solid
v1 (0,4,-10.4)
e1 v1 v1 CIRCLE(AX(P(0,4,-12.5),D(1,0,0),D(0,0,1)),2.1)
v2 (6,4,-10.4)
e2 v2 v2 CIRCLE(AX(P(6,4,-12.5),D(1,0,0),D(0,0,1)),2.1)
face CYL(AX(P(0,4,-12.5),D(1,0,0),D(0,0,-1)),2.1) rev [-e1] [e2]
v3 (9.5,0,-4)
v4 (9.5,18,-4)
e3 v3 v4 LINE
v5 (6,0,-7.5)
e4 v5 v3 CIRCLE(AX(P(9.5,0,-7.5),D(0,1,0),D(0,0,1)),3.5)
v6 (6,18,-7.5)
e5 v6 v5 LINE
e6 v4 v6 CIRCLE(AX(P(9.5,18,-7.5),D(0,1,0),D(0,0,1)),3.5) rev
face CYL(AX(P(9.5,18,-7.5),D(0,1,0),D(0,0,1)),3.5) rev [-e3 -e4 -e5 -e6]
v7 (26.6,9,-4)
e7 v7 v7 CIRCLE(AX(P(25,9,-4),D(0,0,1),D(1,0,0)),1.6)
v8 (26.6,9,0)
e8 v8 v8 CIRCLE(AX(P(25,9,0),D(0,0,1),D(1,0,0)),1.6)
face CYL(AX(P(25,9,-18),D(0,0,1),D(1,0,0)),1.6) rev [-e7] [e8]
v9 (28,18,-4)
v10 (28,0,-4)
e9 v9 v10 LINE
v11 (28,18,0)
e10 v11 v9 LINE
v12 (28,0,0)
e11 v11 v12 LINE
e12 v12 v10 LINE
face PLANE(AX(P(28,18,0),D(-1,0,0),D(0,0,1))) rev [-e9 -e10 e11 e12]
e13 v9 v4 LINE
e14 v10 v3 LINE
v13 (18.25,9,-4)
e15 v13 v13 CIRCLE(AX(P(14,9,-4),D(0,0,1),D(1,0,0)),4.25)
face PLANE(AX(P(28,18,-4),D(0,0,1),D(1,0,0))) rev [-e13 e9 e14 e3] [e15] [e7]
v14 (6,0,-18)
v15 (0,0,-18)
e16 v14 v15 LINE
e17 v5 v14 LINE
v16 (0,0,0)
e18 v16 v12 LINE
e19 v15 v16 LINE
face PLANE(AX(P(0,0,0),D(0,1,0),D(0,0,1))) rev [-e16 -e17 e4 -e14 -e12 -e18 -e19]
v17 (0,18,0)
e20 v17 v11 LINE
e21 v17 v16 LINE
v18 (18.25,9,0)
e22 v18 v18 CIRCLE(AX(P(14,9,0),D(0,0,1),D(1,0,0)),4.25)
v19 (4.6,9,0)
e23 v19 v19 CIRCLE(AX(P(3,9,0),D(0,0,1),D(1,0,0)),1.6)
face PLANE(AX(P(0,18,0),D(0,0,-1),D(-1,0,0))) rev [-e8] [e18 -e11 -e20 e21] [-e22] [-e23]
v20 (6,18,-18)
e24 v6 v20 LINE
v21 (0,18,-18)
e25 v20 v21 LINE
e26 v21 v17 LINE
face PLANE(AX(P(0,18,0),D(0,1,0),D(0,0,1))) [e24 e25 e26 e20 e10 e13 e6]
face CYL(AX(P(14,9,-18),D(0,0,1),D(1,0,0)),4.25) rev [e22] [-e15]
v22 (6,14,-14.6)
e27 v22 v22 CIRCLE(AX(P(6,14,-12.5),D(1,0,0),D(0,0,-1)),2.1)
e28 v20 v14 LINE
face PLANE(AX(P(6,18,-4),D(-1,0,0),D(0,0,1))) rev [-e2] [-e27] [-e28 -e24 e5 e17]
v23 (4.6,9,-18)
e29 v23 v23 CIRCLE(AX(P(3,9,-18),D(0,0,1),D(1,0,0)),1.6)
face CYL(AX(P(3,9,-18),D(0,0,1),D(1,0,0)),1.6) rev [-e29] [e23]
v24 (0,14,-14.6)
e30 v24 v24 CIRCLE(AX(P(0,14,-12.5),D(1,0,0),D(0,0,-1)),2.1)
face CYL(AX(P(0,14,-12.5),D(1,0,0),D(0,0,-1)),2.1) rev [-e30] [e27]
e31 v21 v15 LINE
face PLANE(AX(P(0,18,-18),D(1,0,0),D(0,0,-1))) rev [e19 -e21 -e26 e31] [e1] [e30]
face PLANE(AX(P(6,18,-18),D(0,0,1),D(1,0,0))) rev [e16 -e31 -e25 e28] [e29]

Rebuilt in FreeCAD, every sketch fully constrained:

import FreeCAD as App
import Part
import Sketcher
from FreeCAD import Vector
Q = App.Units.Quantity


def edges_at(feature, points):
    """Names of the edges that pass closest to the given points."""
    edges = feature.Shape.Edges
    near = lambda p: min(range(len(edges)), key=lambda i: edges[i].distToShape(Part.Vertex(*p))[0])
    return sorted({f"Edge{near(p) + 1}" for p in points})

doc = App.newDocument("Part")
body = doc.addObject("PartDesign::Body", "Body")

# Sketch on XZ plane
sketch1 = body.newObject("Sketcher::SketchObject", "Sketch")
sketch1.AttachmentSupport = (doc.getObject("XZ_Plane"), [""])
sketch1.MapMode = "FlatFace"
sketch1.addGeometry([
    Part.LineSegment(Vector(0, -18, 0), Vector(0, 0, 0)),  # 0
    Part.LineSegment(Vector(0, 0, 0), Vector(28, 0, 0)),  # 1
    Part.LineSegment(Vector(28, 0, 0), Vector(28, -4, 0)),  # 2
    Part.LineSegment(Vector(28, -4, 0), Vector(6, -4, 0)),  # 3
    Part.LineSegment(Vector(6, -4, 0), Vector(6, -18, 0)),  # 4
    Part.LineSegment(Vector(6, -18, 0), Vector(0, -18, 0)),  # 5
], False)
sketch1.addConstraint([
    Sketcher.Constraint("Coincident", 0, 2, 1, 1),
    Sketcher.Constraint("Coincident", 1, 2, 2, 1),
    Sketcher.Constraint("Coincident", 2, 2, 3, 1),
    Sketcher.Constraint("Coincident", 3, 2, 4, 1),
    Sketcher.Constraint("Coincident", 4, 2, 5, 1),
    Sketcher.Constraint("Coincident", 5, 2, 0, 1),
    Sketcher.Constraint("Vertical", 0),
    Sketcher.Constraint("Horizontal", 1),
    Sketcher.Constraint("Vertical", 2),
    Sketcher.Constraint("Horizontal", 3),
    Sketcher.Constraint("Vertical", 4),
    Sketcher.Constraint("Horizontal", 5),
    Sketcher.Constraint("Coincident", 0, 2, -1, 1),
    Sketcher.Constraint("DistanceX", 1, 1, 1, 2, Q("28 mm")),
    Sketcher.Constraint("DistanceX", 3, 2, 3, 1, Q("22 mm")),
    Sketcher.Constraint("DistanceY", 0, 1, 0, 2, Q("18 mm")),
    Sketcher.Constraint("DistanceY", 2, 2, 2, 1, Q("4 mm")),
])
pad1 = body.newObject("PartDesign::Pad", "Pad")
pad1.Profile = sketch1
pad1.Length = 18
pad1.Reversed = True

# Sketch on XY plane
sketch2 = body.newObject("Sketcher::SketchObject", "Sketch001")
sketch2.AttachmentSupport = (doc.getObject("XY_Plane"), [""])
sketch2.MapMode = "FlatFace"
sketch2.addGeometry([
    Part.Circle(Vector(25, 9, 0), Vector(0, 0, 1), 1.6),
    Part.Circle(Vector(3, 9, 0), Vector(0, 0, 1), 1.6),
], False)
sketch2.addConstraint([
    Sketcher.Constraint("Equal", 0, 1),
    Sketcher.Constraint("Horizontal", 0, 3, 1, 3),
    Sketcher.Constraint("Diameter", 0, Q("3.2 mm")),
    Sketcher.Constraint("DistanceX", -1, 1, 0, 3, Q("25 mm")),
    Sketcher.Constraint("DistanceY", -1, 1, 0, 3, Q("9 mm")),
    Sketcher.Constraint("DistanceX", -1, 1, 1, 3, Q("3 mm")),
])
pocket1 = body.newObject("PartDesign::Pocket", "Pocket")
pocket1.Profile = sketch2
pocket1.Type = "ThroughAll"
doc.recompute()

fillet = body.newObject("PartDesign::Fillet", "Fillet")
fillet.Base = (pocket1, edges_at(pocket1, [(6, 9, -4)]))
fillet.Radius = 3.5

# Sketch on YZ plane
sketch3 = body.newObject("Sketcher::SketchObject", "Sketch002")
sketch3.AttachmentSupport = (doc.getObject("YZ_Plane"), [""])
sketch3.MapMode = "FlatFace"
sketch3.AttachmentOffset = App.Placement(Vector(0, 0, 6), App.Rotation())
sketch3.addGeometry([
    Part.Circle(Vector(14, -12.5, 0), Vector(0, 0, 1), 2.1),
    Part.Circle(Vector(4, -12.5, 0), Vector(0, 0, 1), 2.1),
], False)
sketch3.addConstraint([
    Sketcher.Constraint("Equal", 0, 1),
    Sketcher.Constraint("Horizontal", 0, 3, 1, 3),
    Sketcher.Constraint("Diameter", 0, Q("4.2 mm")),
    Sketcher.Constraint("DistanceX", -1, 1, 0, 3, Q("14 mm")),
    Sketcher.Constraint("DistanceX", -1, 1, 1, 3, Q("4 mm")),
    Sketcher.Constraint("DistanceY", 0, 3, -1, 1, Q("12.5 mm")),
])
pocket2 = body.newObject("PartDesign::Pocket", "Pocket001")
pocket2.Profile = sketch3
pocket2.Length = 6

# Sketch on XY plane
sketch4 = body.newObject("Sketcher::SketchObject", "Sketch003")
sketch4.AttachmentSupport = (doc.getObject("XY_Plane"), [""])
sketch4.MapMode = "FlatFace"
sketch4.addGeometry(Part.Circle(Vector(14, 9, 0), Vector(0, 0, 1), 4.25), False)
sketch4.addConstraint([
    Sketcher.Constraint("Diameter", 0, Q("8.5 mm")),
    Sketcher.Constraint("DistanceX", -1, 1, 0, 3, Q("14 mm")),
    Sketcher.Constraint("DistanceY", -1, 1, 0, 3, Q("9 mm")),
])
pocket3 = body.newObject("PartDesign::Pocket", "Pocket002")
pocket3.Profile = sketch4
pocket3.Type = "ThroughAll"

doc.recompute()
